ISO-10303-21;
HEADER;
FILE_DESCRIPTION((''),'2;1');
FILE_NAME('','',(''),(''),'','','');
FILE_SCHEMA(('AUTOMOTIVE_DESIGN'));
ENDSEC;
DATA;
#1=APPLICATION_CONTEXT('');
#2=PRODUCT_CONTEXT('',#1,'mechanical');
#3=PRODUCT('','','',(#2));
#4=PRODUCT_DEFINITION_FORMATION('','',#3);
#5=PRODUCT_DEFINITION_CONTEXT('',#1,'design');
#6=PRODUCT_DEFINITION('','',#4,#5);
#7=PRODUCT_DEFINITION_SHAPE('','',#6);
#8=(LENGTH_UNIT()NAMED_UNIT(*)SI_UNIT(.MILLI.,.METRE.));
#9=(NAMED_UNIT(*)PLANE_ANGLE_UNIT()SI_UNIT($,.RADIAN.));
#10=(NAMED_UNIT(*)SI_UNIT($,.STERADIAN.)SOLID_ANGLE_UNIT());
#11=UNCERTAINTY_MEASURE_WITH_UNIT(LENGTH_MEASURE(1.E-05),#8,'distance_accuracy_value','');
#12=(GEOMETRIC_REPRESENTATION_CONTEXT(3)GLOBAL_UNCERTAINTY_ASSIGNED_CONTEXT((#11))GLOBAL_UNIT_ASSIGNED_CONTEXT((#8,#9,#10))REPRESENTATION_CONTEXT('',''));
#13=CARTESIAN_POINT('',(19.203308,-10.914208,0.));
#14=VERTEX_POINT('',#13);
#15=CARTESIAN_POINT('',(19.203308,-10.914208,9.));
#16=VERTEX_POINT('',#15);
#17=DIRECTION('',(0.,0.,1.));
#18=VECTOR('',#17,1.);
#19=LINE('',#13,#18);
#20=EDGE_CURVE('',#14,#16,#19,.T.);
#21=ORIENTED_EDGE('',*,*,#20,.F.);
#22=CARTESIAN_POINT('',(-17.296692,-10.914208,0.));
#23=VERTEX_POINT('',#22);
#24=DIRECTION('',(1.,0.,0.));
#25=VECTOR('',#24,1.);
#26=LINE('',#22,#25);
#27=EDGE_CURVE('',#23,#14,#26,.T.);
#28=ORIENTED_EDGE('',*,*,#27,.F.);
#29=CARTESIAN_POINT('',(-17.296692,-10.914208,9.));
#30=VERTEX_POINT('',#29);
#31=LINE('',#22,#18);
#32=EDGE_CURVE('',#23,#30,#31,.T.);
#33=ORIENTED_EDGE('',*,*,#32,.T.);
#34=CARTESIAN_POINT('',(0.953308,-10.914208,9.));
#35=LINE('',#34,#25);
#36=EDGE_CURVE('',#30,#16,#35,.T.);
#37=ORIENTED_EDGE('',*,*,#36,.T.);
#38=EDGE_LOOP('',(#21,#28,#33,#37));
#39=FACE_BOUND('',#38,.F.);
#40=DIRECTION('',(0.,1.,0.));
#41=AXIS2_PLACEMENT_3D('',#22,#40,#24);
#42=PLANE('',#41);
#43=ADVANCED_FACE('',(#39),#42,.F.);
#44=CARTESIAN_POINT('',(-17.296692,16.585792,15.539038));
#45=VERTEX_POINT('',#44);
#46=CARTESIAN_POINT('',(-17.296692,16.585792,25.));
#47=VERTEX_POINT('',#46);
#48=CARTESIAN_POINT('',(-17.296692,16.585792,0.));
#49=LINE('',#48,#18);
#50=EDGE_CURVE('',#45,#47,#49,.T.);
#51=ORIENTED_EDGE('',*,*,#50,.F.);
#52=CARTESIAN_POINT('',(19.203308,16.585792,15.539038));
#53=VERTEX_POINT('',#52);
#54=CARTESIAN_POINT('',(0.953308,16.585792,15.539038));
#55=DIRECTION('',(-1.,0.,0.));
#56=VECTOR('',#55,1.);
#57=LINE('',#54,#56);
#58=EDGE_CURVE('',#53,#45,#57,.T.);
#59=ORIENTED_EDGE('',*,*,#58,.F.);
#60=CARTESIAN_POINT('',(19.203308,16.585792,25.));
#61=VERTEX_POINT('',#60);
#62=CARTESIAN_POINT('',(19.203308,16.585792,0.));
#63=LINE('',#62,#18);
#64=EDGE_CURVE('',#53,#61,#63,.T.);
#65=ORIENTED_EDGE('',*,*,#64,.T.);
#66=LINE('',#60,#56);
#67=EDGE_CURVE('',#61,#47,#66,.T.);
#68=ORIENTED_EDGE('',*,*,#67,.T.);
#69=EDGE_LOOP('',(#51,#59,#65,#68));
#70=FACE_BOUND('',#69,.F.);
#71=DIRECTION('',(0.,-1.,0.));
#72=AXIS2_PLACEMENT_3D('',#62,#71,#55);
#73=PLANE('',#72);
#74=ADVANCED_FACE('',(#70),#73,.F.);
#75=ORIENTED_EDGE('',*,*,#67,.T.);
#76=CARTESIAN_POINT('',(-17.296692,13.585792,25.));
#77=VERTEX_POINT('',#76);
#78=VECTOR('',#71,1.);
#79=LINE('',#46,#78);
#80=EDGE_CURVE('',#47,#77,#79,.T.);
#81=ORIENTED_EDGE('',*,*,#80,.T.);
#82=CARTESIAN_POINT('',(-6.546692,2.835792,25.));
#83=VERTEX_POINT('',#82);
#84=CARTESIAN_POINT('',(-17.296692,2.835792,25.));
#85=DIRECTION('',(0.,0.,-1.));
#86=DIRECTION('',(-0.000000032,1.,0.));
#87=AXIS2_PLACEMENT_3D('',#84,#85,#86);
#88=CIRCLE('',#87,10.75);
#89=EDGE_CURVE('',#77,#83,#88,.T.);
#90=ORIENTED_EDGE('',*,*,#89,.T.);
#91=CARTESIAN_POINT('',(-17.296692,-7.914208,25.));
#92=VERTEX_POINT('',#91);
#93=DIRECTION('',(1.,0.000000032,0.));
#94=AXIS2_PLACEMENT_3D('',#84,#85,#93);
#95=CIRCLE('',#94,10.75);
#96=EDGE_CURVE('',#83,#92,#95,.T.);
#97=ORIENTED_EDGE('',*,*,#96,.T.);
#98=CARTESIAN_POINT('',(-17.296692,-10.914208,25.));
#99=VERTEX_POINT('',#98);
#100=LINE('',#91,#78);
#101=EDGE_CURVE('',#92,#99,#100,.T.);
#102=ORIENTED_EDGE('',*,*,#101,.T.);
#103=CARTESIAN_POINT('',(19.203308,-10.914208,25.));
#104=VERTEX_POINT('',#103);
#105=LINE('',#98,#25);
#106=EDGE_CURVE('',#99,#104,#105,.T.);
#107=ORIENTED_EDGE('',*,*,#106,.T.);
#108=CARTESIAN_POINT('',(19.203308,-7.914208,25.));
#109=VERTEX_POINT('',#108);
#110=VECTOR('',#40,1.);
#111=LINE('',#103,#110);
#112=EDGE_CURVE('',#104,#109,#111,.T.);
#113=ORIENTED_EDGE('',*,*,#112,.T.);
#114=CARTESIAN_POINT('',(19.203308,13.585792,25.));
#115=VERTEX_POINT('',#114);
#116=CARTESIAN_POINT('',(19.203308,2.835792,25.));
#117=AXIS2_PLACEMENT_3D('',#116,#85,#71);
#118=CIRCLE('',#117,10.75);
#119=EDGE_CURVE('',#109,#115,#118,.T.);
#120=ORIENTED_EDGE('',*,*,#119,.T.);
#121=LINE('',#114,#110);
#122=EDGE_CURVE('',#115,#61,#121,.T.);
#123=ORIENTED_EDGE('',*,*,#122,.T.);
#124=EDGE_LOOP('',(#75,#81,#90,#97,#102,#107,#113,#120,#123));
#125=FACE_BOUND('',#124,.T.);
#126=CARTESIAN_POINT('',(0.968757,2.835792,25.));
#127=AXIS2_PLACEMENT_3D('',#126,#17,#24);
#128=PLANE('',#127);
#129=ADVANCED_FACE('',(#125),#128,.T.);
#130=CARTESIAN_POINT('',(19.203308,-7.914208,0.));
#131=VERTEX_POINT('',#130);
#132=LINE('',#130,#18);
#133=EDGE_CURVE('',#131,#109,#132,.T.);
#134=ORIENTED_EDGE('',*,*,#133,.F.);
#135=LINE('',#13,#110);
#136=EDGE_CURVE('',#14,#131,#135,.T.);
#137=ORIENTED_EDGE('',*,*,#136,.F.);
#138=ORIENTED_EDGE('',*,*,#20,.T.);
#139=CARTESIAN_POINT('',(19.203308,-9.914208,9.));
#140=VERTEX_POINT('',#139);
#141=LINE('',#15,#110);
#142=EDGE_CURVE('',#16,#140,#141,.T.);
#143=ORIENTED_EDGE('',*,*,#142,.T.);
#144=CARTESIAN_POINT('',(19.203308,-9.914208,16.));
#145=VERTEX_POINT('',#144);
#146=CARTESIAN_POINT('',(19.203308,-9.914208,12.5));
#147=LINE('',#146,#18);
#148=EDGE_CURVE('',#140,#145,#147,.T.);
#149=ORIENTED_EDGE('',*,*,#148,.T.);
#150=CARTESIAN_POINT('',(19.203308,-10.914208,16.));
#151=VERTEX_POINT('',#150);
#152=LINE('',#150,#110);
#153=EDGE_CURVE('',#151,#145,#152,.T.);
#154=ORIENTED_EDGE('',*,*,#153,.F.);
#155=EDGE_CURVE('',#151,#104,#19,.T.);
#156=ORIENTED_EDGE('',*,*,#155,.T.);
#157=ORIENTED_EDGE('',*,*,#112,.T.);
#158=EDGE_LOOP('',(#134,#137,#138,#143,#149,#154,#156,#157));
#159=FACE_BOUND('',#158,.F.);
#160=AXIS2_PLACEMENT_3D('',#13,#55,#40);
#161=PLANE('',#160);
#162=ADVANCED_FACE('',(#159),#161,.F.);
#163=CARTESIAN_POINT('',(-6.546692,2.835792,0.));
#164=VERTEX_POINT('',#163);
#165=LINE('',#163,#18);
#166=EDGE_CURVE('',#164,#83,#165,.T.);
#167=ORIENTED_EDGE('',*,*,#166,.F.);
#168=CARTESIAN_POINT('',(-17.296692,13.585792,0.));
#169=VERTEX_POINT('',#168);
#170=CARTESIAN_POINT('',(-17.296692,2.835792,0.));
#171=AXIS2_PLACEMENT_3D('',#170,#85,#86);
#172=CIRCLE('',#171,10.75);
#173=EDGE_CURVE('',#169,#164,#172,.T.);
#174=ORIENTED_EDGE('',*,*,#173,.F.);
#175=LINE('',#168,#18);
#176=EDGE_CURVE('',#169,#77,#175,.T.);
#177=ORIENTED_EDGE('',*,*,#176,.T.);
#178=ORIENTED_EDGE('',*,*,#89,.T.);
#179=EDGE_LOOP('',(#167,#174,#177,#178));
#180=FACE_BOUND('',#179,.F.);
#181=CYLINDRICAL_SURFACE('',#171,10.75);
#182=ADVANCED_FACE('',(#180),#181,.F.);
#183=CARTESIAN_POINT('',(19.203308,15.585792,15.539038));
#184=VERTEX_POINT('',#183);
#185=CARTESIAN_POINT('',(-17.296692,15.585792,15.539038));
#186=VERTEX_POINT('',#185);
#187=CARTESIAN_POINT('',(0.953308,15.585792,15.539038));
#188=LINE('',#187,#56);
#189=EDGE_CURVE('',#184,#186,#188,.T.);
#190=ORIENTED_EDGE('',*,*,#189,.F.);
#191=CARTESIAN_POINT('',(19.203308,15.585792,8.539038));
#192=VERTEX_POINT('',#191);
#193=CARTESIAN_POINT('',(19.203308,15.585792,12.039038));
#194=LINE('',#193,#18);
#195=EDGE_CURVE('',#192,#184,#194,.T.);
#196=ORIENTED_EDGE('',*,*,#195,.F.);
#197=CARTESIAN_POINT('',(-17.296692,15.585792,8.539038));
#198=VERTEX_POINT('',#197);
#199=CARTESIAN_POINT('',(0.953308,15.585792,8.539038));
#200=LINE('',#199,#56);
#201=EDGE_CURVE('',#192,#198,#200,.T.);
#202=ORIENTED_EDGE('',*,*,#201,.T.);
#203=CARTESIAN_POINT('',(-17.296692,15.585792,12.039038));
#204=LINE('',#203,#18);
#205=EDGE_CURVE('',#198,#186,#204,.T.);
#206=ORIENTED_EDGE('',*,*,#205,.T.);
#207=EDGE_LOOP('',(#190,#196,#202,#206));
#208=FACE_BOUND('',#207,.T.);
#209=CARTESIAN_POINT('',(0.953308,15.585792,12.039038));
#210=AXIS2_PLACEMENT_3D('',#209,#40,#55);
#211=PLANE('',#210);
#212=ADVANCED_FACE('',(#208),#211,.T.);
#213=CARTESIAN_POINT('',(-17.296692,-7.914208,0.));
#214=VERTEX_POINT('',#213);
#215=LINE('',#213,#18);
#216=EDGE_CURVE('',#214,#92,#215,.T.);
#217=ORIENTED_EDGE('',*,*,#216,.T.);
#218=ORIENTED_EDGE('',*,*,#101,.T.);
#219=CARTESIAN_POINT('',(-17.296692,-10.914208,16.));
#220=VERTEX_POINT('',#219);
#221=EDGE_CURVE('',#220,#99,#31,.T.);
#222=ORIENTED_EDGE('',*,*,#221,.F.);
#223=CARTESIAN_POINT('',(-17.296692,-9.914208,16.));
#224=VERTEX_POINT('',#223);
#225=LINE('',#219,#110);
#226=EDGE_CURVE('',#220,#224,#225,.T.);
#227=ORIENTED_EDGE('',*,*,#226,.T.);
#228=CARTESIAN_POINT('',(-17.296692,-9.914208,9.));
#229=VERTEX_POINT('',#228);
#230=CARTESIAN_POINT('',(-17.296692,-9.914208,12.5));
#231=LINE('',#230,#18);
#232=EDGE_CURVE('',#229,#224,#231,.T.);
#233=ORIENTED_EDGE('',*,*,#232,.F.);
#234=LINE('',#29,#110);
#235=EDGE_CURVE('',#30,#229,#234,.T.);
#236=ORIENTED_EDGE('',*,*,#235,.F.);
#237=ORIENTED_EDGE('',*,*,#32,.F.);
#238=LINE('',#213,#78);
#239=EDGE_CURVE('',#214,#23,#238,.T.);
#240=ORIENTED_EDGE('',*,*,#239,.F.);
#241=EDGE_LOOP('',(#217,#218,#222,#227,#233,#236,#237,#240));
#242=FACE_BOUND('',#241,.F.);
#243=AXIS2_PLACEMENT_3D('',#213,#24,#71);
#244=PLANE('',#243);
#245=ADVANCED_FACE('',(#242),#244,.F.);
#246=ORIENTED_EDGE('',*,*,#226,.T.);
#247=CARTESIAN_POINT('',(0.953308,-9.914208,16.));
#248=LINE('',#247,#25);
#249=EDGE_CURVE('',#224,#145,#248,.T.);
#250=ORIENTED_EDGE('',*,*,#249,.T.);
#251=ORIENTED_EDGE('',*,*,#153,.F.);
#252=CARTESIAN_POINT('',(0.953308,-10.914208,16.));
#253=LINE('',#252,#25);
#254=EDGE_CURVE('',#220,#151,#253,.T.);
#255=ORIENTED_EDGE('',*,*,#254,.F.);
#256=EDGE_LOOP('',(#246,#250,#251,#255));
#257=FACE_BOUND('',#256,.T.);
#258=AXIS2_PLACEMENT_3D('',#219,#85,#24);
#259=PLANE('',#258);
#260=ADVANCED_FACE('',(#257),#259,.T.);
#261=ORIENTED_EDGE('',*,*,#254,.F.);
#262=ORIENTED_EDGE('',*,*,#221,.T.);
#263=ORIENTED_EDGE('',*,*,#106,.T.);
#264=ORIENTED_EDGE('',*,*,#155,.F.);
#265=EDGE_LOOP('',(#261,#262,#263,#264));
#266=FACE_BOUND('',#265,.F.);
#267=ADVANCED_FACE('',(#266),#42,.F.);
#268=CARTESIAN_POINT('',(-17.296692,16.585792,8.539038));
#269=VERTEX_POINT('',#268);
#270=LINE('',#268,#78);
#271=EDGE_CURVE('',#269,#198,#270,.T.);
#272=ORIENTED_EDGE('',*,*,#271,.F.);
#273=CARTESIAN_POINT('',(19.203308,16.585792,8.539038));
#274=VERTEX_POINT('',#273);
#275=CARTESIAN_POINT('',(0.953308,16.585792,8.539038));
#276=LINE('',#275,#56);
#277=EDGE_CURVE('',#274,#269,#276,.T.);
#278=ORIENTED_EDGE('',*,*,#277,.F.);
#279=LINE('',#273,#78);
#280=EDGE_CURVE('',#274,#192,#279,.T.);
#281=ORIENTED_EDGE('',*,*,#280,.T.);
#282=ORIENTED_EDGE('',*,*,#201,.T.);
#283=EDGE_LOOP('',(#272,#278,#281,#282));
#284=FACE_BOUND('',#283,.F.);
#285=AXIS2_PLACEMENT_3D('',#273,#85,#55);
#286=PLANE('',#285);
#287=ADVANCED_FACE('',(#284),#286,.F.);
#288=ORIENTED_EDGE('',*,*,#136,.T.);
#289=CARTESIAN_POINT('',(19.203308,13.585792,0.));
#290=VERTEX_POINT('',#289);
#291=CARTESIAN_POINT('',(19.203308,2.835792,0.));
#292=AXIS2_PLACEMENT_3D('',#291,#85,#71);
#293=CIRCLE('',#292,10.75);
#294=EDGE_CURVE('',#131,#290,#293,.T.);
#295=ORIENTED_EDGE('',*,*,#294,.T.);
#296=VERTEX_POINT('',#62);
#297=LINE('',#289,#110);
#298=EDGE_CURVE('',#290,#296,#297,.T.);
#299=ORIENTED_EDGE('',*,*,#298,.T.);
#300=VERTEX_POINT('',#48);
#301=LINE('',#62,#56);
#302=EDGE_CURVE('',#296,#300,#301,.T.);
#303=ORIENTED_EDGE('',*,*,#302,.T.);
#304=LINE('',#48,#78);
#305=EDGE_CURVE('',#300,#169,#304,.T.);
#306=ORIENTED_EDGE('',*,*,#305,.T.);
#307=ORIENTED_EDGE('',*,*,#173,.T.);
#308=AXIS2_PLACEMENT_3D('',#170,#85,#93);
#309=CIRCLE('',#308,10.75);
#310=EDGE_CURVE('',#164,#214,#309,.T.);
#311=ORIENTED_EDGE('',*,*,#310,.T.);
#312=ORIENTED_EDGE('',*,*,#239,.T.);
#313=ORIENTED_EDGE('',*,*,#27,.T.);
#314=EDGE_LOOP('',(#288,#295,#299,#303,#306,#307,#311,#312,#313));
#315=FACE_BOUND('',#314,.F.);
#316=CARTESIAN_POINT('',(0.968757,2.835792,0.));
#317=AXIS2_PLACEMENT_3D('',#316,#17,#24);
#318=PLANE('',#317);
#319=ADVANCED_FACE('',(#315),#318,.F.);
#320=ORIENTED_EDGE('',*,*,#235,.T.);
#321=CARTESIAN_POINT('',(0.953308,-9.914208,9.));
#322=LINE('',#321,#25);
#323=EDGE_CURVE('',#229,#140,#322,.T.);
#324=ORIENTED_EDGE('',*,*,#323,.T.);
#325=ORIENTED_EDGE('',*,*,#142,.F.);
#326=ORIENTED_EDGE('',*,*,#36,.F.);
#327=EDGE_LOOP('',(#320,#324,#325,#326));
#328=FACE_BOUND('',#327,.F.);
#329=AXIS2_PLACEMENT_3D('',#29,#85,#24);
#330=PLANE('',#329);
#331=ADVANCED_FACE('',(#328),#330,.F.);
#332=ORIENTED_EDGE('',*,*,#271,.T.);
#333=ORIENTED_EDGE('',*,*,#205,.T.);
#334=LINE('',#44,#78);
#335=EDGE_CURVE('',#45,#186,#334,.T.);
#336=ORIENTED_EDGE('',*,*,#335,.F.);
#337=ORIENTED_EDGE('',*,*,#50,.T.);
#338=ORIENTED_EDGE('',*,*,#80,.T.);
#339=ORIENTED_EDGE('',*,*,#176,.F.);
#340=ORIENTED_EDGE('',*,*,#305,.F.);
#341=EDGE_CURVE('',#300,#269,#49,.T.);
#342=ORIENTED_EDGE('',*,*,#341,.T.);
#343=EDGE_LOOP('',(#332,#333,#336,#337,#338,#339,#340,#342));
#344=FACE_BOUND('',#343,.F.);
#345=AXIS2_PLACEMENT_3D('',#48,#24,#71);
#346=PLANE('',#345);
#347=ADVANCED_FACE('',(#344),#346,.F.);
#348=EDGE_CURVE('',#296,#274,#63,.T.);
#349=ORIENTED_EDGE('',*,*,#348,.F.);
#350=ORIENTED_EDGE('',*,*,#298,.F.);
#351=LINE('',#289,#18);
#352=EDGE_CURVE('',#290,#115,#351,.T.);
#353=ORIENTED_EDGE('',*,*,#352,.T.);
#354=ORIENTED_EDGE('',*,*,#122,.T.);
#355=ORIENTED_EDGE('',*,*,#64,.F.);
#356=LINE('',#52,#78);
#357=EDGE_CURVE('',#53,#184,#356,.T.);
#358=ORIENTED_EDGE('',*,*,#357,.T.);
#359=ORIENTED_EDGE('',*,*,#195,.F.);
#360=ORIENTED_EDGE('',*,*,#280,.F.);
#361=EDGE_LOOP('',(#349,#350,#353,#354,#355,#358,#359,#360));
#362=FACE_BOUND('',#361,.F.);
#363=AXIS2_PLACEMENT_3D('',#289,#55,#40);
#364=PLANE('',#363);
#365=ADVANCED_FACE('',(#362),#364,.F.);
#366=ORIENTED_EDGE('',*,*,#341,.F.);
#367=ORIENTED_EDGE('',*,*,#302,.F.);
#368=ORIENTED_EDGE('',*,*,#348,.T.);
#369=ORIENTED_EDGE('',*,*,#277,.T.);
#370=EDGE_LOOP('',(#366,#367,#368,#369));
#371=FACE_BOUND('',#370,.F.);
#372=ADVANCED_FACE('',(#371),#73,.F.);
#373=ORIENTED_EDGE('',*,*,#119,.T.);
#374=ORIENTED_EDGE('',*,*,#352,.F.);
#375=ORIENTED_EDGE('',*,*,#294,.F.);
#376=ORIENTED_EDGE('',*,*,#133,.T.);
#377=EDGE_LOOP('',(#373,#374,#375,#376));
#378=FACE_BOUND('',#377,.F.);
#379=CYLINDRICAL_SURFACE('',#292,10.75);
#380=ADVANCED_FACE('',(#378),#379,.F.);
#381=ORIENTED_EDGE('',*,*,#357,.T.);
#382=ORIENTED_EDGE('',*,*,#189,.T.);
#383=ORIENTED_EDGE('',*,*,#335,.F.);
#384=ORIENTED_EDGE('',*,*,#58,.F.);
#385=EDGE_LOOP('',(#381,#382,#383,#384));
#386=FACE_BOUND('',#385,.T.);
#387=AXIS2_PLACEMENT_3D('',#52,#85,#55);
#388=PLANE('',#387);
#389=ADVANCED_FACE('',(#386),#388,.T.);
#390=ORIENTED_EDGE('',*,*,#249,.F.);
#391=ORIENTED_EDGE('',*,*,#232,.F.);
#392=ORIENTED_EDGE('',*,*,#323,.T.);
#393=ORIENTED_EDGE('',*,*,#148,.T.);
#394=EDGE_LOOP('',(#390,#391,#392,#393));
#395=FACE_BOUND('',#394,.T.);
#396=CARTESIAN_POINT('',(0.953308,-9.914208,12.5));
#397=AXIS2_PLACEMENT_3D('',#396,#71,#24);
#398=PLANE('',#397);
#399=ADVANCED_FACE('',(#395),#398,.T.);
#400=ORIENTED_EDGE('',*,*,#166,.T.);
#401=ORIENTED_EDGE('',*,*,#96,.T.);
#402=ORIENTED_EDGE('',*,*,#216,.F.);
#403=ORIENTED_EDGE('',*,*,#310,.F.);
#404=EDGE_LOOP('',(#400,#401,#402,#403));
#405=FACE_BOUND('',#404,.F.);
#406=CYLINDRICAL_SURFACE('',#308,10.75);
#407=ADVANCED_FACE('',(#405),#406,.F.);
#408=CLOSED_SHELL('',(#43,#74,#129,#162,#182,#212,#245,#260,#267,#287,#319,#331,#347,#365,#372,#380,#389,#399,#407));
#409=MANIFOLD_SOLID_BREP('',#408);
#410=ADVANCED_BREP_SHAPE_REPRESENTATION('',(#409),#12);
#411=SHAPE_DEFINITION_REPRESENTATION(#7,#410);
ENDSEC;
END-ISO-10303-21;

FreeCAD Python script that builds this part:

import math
import FreeCAD as App
import Part
import Sketcher

V = App.Vector

doc = App.newDocument("Part")
body = doc.addObject("PartDesign::Body", "Body")

# Sketch on XY plane
sketch1 = body.newObject("Sketcher::SketchObject", "Sketch")
sketch1.AttachmentSupport = (doc.getObject("XY_Plane"), [""])
sketch1.MapMode = "FlatFace"
sketch1.addGeometry([
    Part.ArcOfCircle(Part.Circle(V(19.203308, 2.835792, 0), V(0, 0, 1), 10.75), math.radians(90), math.radians(270)),  # 0
    Part.LineSegment(V(19.203308, 13.585792, 0), V(19.203308, 16.585792, 0)),  # 1
    Part.LineSegment(V(19.203308, 16.585792, 0), V(-17.296692, 16.585792, 0)),  # 2
    Part.LineSegment(V(-17.296692, 16.585792, 0), V(-17.296692, 13.585792, 0)),  # 3
    Part.ArcOfCircle(Part.Circle(V(-17.296692, 2.835792, 0), V(0, 0, 1), 10.75), math.radians(-0.000002), math.radians(90.000002)),  # 4
    Part.ArcOfCircle(Part.Circle(V(-17.296692, 2.835792, 0), V(0, 0, 1), 10.75), math.radians(-90.000002), math.radians(0.000002)),  # 5
    Part.LineSegment(V(-17.296692, -7.914208, 0), V(-17.296692, -10.914208, 0)),  # 6
    Part.LineSegment(V(-17.296692, -10.914208, 0), V(19.203308, -10.914208, 0)),  # 7
    Part.LineSegment(V(19.203308, -10.914208, 0), V(19.203308, -7.914208, 0)),  # 8
], False)
sketch1.addConstraint([
    Sketcher.Constraint("Coincident", 0, 1, 1, 1),
    Sketcher.Constraint("Coincident", 1, 2, 2, 1),
    Sketcher.Constraint("Coincident", 2, 2, 3, 1),
    Sketcher.Constraint("Coincident", 3, 2, 4, 2),
    Sketcher.Constraint("Tangent", 4, 1, 5, 2),
    Sketcher.Constraint("Coincident", 5, 1, 6, 1),
    Sketcher.Constraint("Coincident", 6, 2, 7, 1),
    Sketcher.Constraint("Coincident", 7, 2, 8, 1),
    Sketcher.Constraint("Coincident", 8, 2, 0, 2),
    Sketcher.Constraint("Vertical", 1),
    Sketcher.Constraint("Horizontal", 2),
    Sketcher.Constraint("Vertical", 3),
    Sketcher.Constraint("Vertical", 6),
    Sketcher.Constraint("Horizontal", 7),
    Sketcher.Constraint("Vertical", 8),
    Sketcher.Constraint("Equal", 0, 4),
    Sketcher.Constraint("Equal", 4, 5),
    Sketcher.Constraint("Horizontal", 0, 3, 4, 3),
    Sketcher.Constraint("Horizontal", 5, 3, 4, 1),
    Sketcher.Constraint("Vertical", 5, 3, 2, 2),
    Sketcher.Constraint("Vertical", 3, 2, 5, 1),
    Sketcher.Constraint("Vertical", 1, 2, 7, 2),
    Sketcher.Constraint("Equal", 3, 6),
    Sketcher.Constraint("DistanceY", 1, 1, 1, 2, 3.0),
    Sketcher.Constraint("Radius", 0, 10.75),
    Sketcher.Constraint("DistanceX", 2, 2, 2, 1, 36.5),
    Sketcher.Constraint("DistanceX", 4, 3, 0, 3, 36.5),
    Sketcher.Constraint("DistanceX", -1, 1, 0, 3, 19.203308),
    Sketcher.Constraint("DistanceY", -1, 1, 5, 3, 2.835792),
])
pad1 = body.newObject("PartDesign::Pad", "Pad")
pad1.Profile = sketch1
pad1.Length = 25

# Sketch on XZ plane
sketch2 = body.newObject("Sketcher::SketchObject", "Sketch001")
sketch2.AttachmentSupport = (doc.getObject("XZ_Plane"), [""])
sketch2.MapMode = "FlatFace"
sketch2.AttachmentOffset = App.Placement(V(0, 0, 10.914208), App.Rotation())
sketch2.addGeometry([
    Part.LineSegment(V(-17.296692, 16, 0), V(-17.296692, 9, 0)),
    Part.LineSegment(V(-17.296692, 9, 0), V(19.203308, 9, 0)),
    Part.LineSegment(V(19.203308, 9, 0), V(19.203308, 16, 0)),
    Part.LineSegment(V(19.203308, 16, 0), V(-17.296692, 16, 0)),
], False)
sketch2.addConstraint([
    Sketcher.Constraint("Coincident", 0, 2, 1, 1),
    Sketcher.Constraint("Coincident", 1, 2, 2, 1),
    Sketcher.Constraint("Coincident", 2, 2, 3, 1),
    Sketcher.Constraint("Coincident", 3, 2, 0, 1),
    Sketcher.Constraint("Vertical", 0),
    Sketcher.Constraint("Horizontal", 1),
    Sketcher.Constraint("Vertical", 2),
    Sketcher.Constraint("Horizontal", 3),
    Sketcher.Constraint("DistanceY", 0, 2, 0, 1, 7.0),
    Sketcher.Constraint("DistanceX", 1, 1, 1, 2, 36.5),
    Sketcher.Constraint("DistanceY", -1, 1, 0, 2, 9.0),
    Sketcher.Constraint("DistanceX", 0, 2, -1, 1, 17.296692),
])
pocket1 = body.newObject("PartDesign::Pocket", "Pocket")
pocket1.Profile = sketch2
pocket1.Length = 1

# Sketch on XZ plane
sketch3 = body.newObject("Sketcher::SketchObject", "Sketch002")
sketch3.AttachmentSupport = (doc.getObject("XZ_Plane"), [""])
sketch3.MapMode = "FlatFace"
sketch3.AttachmentOffset = App.Placement(V(0, 0, -16.585792), App.Rotation())
sketch3.addGeometry([
    Part.LineSegment(V(19.203308, 15.539038, 0), V(19.203308, 8.539038, 0)),
    Part.LineSegment(V(19.203308, 8.539038, 0), V(-17.296692, 8.539038, 0)),
    Part.LineSegment(V(-17.296692, 8.539038, 0), V(-17.296692, 15.539038, 0)),
    Part.LineSegment(V(-17.296692, 15.539038, 0), V(19.203308, 15.539038, 0)),
], False)
sketch3.addConstraint([
    Sketcher.Constraint("Coincident", 0, 2, 1, 1),
    Sketcher.Constraint("Coincident", 1, 2, 2, 1),
    Sketcher.Constraint("Coincident", 2, 2, 3, 1),
    Sketcher.Constraint("Coincident", 3, 2, 0, 1),
    Sketcher.Constraint("Vertical", 0),
    Sketcher.Constraint("Horizontal", 1),
    Sketcher.Constraint("Vertical", 2),
    Sketcher.Constraint("Horizontal", 3),
    Sketcher.Constraint("DistanceY", 0, 2, 0, 1, 7.0),
    Sketcher.Constraint("DistanceX", 1, 2, 1, 1, 36.5),
    Sketcher.Constraint("DistanceX", -1, 1, 0, 2, 19.203308),
    Sketcher.Constraint("DistanceY", -1, 1, 0, 2, 8.539038),
])
pocket2 = body.newObject("PartDesign::Pocket", "Pocket001")
pocket2.Profile = sketch3
pocket2.Length = 1
pocket2.Reversed = True

doc.recompute()
